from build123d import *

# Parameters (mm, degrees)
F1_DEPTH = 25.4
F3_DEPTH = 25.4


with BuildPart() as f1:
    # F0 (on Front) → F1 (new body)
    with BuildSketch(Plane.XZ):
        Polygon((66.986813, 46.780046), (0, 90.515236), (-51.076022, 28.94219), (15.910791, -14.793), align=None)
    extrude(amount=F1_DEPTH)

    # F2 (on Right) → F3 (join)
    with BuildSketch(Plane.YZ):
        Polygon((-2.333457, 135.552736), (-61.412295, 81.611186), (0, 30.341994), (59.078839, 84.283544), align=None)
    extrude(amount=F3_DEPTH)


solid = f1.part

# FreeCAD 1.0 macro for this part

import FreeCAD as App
import Part
import Sketcher
from FreeCAD import Vector

doc = App.newDocument("Part")
body = doc.addObject("PartDesign::Body", "Body")

# Sketch on XZ plane
sketch1 = body.newObject("Sketcher::SketchObject", "Sketch")
sketch1.AttachmentSupport = (doc.getObject("XZ_Plane"), [""])
sketch1.MapMode = "FlatFace"
sketch1.addGeometry(Part.LineSegment(Vector(66.986813, 46.780046, 0), Vector(0, 90.515236, 0)), False)
sketch1.addGeometry(Part.LineSegment(Vector(0, 90.515236, 0), Vector(-51.076022, 28.94219, 0)), False)
sketch1.addGeometry(Part.LineSegment(Vector(-51.076022, 28.94219, 0), Vector(15.910791, -14.793, 0)), False)
sketch1.addGeometry(Part.LineSegment(Vector(15.910791, -14.793, 0), Vector(66.986813, 46.780046, 0)), False)
sketch1.addConstraint(Sketcher.Constraint("Coincident", 0, 2, 1, 1))
sketch1.addConstraint(Sketcher.Constraint("Coincident", 1, 2, 2, 1))
sketch1.addConstraint(Sketcher.Constraint("Coincident", 2, 2, 3, 1))
sketch1.addConstraint(Sketcher.Constraint("Coincident", 3, 2, 0, 1))
sketch1.addConstraint(Sketcher.Constraint("PointOnObject", 0, 2, -2))
sketch1.addConstraint(Sketcher.Constraint("Parallel", 0, 2))
sketch1.addConstraint(Sketcher.Constraint("Parallel", 1, 3))
sketch1.addConstraint(Sketcher.Constraint("Equal", 0, 1))
sketch1.addConstraint(Sketcher.Constraint("Distance", 0, 80.0))
sketch1.addConstraint(Sketcher.Constraint("DistanceY", 2, 2, -1, 1, 14.793))
sketch1.addConstraint(Sketcher.Constraint("DistanceY", -1, 1, 1, 2, 28.94219))
sketch1.addConstraint(Sketcher.Constraint("DistanceX", -1, 1, 2, 2, 15.910791))
pad1 = body.newObject("PartDesign::Pad", "Pad")
pad1.Profile = sketch1
pad1.Length = 25.4

# Sketch on YZ plane
sketch2 = body.newObject("Sketcher::SketchObject", "Sketch001")
sketch2.AttachmentSupport = (doc.getObject("YZ_Plane"), [""])
sketch2.MapMode = "FlatFace"
sketch2.addGeometry(Part.LineSegment(Vector(-2.333457, 135.552736, 0), Vector(-61.412295, 81.611186, 0)), False)
sketch2.addGeometry(Part.LineSegment(Vector(-61.412295, 81.611186, 0), Vector(0, 30.341994, 0)), False)
sketch2.addGeometry(Part.LineSegment(Vector(0, 30.341994, 0), Vector(59.078839, 84.283544, 0)), False)
sketch2.addGeometry(Part.LineSegment(Vector(59.078839, 84.283544, 0), Vector(-2.333457, 135.552736, 0)), False)
sketch2.addConstraint(Sketcher.Constraint("Coincident", 0, 2, 1, 1))
sketch2.addConstraint(Sketcher.Constraint("Coincident", 1, 2, 2, 1))
sketch2.addConstraint(Sketcher.Constraint("Coincident", 2, 2, 3, 1))
sketch2.addConstraint(Sketcher.Constraint("Coincident", 3, 2, 0, 1))
sketch2.addConstraint(Sketcher.Constraint("PointOnObject", 1, 2, -2))
sketch2.addConstraint(Sketcher.Constraint("Parallel", 0, 2))
sketch2.addConstraint(Sketcher.Constraint("Parallel", 1, 3))
sketch2.addConstraint(Sketcher.Constraint("Equal", 0, 1))
sketch2.addConstraint(Sketcher.Constraint("Distance", 0, 79.999999))
sketch2.addConstraint(Sketcher.Constraint("DistanceX", -1, 1, 2, 2, 59.078839))
sketch2.addConstraint(Sketcher.Constraint("DistanceY", 0, 2, 2, 2, 2.672358))
sketch2.addConstraint(Sketcher.Constraint("DistanceY", -1, 1, 0, 2, 81.611186))
pad2 = body.newObject("PartDesign::Pad", "Pad001")
pad2.Profile = sketch2
pad2.Length = 25.4

doc.recompute()
